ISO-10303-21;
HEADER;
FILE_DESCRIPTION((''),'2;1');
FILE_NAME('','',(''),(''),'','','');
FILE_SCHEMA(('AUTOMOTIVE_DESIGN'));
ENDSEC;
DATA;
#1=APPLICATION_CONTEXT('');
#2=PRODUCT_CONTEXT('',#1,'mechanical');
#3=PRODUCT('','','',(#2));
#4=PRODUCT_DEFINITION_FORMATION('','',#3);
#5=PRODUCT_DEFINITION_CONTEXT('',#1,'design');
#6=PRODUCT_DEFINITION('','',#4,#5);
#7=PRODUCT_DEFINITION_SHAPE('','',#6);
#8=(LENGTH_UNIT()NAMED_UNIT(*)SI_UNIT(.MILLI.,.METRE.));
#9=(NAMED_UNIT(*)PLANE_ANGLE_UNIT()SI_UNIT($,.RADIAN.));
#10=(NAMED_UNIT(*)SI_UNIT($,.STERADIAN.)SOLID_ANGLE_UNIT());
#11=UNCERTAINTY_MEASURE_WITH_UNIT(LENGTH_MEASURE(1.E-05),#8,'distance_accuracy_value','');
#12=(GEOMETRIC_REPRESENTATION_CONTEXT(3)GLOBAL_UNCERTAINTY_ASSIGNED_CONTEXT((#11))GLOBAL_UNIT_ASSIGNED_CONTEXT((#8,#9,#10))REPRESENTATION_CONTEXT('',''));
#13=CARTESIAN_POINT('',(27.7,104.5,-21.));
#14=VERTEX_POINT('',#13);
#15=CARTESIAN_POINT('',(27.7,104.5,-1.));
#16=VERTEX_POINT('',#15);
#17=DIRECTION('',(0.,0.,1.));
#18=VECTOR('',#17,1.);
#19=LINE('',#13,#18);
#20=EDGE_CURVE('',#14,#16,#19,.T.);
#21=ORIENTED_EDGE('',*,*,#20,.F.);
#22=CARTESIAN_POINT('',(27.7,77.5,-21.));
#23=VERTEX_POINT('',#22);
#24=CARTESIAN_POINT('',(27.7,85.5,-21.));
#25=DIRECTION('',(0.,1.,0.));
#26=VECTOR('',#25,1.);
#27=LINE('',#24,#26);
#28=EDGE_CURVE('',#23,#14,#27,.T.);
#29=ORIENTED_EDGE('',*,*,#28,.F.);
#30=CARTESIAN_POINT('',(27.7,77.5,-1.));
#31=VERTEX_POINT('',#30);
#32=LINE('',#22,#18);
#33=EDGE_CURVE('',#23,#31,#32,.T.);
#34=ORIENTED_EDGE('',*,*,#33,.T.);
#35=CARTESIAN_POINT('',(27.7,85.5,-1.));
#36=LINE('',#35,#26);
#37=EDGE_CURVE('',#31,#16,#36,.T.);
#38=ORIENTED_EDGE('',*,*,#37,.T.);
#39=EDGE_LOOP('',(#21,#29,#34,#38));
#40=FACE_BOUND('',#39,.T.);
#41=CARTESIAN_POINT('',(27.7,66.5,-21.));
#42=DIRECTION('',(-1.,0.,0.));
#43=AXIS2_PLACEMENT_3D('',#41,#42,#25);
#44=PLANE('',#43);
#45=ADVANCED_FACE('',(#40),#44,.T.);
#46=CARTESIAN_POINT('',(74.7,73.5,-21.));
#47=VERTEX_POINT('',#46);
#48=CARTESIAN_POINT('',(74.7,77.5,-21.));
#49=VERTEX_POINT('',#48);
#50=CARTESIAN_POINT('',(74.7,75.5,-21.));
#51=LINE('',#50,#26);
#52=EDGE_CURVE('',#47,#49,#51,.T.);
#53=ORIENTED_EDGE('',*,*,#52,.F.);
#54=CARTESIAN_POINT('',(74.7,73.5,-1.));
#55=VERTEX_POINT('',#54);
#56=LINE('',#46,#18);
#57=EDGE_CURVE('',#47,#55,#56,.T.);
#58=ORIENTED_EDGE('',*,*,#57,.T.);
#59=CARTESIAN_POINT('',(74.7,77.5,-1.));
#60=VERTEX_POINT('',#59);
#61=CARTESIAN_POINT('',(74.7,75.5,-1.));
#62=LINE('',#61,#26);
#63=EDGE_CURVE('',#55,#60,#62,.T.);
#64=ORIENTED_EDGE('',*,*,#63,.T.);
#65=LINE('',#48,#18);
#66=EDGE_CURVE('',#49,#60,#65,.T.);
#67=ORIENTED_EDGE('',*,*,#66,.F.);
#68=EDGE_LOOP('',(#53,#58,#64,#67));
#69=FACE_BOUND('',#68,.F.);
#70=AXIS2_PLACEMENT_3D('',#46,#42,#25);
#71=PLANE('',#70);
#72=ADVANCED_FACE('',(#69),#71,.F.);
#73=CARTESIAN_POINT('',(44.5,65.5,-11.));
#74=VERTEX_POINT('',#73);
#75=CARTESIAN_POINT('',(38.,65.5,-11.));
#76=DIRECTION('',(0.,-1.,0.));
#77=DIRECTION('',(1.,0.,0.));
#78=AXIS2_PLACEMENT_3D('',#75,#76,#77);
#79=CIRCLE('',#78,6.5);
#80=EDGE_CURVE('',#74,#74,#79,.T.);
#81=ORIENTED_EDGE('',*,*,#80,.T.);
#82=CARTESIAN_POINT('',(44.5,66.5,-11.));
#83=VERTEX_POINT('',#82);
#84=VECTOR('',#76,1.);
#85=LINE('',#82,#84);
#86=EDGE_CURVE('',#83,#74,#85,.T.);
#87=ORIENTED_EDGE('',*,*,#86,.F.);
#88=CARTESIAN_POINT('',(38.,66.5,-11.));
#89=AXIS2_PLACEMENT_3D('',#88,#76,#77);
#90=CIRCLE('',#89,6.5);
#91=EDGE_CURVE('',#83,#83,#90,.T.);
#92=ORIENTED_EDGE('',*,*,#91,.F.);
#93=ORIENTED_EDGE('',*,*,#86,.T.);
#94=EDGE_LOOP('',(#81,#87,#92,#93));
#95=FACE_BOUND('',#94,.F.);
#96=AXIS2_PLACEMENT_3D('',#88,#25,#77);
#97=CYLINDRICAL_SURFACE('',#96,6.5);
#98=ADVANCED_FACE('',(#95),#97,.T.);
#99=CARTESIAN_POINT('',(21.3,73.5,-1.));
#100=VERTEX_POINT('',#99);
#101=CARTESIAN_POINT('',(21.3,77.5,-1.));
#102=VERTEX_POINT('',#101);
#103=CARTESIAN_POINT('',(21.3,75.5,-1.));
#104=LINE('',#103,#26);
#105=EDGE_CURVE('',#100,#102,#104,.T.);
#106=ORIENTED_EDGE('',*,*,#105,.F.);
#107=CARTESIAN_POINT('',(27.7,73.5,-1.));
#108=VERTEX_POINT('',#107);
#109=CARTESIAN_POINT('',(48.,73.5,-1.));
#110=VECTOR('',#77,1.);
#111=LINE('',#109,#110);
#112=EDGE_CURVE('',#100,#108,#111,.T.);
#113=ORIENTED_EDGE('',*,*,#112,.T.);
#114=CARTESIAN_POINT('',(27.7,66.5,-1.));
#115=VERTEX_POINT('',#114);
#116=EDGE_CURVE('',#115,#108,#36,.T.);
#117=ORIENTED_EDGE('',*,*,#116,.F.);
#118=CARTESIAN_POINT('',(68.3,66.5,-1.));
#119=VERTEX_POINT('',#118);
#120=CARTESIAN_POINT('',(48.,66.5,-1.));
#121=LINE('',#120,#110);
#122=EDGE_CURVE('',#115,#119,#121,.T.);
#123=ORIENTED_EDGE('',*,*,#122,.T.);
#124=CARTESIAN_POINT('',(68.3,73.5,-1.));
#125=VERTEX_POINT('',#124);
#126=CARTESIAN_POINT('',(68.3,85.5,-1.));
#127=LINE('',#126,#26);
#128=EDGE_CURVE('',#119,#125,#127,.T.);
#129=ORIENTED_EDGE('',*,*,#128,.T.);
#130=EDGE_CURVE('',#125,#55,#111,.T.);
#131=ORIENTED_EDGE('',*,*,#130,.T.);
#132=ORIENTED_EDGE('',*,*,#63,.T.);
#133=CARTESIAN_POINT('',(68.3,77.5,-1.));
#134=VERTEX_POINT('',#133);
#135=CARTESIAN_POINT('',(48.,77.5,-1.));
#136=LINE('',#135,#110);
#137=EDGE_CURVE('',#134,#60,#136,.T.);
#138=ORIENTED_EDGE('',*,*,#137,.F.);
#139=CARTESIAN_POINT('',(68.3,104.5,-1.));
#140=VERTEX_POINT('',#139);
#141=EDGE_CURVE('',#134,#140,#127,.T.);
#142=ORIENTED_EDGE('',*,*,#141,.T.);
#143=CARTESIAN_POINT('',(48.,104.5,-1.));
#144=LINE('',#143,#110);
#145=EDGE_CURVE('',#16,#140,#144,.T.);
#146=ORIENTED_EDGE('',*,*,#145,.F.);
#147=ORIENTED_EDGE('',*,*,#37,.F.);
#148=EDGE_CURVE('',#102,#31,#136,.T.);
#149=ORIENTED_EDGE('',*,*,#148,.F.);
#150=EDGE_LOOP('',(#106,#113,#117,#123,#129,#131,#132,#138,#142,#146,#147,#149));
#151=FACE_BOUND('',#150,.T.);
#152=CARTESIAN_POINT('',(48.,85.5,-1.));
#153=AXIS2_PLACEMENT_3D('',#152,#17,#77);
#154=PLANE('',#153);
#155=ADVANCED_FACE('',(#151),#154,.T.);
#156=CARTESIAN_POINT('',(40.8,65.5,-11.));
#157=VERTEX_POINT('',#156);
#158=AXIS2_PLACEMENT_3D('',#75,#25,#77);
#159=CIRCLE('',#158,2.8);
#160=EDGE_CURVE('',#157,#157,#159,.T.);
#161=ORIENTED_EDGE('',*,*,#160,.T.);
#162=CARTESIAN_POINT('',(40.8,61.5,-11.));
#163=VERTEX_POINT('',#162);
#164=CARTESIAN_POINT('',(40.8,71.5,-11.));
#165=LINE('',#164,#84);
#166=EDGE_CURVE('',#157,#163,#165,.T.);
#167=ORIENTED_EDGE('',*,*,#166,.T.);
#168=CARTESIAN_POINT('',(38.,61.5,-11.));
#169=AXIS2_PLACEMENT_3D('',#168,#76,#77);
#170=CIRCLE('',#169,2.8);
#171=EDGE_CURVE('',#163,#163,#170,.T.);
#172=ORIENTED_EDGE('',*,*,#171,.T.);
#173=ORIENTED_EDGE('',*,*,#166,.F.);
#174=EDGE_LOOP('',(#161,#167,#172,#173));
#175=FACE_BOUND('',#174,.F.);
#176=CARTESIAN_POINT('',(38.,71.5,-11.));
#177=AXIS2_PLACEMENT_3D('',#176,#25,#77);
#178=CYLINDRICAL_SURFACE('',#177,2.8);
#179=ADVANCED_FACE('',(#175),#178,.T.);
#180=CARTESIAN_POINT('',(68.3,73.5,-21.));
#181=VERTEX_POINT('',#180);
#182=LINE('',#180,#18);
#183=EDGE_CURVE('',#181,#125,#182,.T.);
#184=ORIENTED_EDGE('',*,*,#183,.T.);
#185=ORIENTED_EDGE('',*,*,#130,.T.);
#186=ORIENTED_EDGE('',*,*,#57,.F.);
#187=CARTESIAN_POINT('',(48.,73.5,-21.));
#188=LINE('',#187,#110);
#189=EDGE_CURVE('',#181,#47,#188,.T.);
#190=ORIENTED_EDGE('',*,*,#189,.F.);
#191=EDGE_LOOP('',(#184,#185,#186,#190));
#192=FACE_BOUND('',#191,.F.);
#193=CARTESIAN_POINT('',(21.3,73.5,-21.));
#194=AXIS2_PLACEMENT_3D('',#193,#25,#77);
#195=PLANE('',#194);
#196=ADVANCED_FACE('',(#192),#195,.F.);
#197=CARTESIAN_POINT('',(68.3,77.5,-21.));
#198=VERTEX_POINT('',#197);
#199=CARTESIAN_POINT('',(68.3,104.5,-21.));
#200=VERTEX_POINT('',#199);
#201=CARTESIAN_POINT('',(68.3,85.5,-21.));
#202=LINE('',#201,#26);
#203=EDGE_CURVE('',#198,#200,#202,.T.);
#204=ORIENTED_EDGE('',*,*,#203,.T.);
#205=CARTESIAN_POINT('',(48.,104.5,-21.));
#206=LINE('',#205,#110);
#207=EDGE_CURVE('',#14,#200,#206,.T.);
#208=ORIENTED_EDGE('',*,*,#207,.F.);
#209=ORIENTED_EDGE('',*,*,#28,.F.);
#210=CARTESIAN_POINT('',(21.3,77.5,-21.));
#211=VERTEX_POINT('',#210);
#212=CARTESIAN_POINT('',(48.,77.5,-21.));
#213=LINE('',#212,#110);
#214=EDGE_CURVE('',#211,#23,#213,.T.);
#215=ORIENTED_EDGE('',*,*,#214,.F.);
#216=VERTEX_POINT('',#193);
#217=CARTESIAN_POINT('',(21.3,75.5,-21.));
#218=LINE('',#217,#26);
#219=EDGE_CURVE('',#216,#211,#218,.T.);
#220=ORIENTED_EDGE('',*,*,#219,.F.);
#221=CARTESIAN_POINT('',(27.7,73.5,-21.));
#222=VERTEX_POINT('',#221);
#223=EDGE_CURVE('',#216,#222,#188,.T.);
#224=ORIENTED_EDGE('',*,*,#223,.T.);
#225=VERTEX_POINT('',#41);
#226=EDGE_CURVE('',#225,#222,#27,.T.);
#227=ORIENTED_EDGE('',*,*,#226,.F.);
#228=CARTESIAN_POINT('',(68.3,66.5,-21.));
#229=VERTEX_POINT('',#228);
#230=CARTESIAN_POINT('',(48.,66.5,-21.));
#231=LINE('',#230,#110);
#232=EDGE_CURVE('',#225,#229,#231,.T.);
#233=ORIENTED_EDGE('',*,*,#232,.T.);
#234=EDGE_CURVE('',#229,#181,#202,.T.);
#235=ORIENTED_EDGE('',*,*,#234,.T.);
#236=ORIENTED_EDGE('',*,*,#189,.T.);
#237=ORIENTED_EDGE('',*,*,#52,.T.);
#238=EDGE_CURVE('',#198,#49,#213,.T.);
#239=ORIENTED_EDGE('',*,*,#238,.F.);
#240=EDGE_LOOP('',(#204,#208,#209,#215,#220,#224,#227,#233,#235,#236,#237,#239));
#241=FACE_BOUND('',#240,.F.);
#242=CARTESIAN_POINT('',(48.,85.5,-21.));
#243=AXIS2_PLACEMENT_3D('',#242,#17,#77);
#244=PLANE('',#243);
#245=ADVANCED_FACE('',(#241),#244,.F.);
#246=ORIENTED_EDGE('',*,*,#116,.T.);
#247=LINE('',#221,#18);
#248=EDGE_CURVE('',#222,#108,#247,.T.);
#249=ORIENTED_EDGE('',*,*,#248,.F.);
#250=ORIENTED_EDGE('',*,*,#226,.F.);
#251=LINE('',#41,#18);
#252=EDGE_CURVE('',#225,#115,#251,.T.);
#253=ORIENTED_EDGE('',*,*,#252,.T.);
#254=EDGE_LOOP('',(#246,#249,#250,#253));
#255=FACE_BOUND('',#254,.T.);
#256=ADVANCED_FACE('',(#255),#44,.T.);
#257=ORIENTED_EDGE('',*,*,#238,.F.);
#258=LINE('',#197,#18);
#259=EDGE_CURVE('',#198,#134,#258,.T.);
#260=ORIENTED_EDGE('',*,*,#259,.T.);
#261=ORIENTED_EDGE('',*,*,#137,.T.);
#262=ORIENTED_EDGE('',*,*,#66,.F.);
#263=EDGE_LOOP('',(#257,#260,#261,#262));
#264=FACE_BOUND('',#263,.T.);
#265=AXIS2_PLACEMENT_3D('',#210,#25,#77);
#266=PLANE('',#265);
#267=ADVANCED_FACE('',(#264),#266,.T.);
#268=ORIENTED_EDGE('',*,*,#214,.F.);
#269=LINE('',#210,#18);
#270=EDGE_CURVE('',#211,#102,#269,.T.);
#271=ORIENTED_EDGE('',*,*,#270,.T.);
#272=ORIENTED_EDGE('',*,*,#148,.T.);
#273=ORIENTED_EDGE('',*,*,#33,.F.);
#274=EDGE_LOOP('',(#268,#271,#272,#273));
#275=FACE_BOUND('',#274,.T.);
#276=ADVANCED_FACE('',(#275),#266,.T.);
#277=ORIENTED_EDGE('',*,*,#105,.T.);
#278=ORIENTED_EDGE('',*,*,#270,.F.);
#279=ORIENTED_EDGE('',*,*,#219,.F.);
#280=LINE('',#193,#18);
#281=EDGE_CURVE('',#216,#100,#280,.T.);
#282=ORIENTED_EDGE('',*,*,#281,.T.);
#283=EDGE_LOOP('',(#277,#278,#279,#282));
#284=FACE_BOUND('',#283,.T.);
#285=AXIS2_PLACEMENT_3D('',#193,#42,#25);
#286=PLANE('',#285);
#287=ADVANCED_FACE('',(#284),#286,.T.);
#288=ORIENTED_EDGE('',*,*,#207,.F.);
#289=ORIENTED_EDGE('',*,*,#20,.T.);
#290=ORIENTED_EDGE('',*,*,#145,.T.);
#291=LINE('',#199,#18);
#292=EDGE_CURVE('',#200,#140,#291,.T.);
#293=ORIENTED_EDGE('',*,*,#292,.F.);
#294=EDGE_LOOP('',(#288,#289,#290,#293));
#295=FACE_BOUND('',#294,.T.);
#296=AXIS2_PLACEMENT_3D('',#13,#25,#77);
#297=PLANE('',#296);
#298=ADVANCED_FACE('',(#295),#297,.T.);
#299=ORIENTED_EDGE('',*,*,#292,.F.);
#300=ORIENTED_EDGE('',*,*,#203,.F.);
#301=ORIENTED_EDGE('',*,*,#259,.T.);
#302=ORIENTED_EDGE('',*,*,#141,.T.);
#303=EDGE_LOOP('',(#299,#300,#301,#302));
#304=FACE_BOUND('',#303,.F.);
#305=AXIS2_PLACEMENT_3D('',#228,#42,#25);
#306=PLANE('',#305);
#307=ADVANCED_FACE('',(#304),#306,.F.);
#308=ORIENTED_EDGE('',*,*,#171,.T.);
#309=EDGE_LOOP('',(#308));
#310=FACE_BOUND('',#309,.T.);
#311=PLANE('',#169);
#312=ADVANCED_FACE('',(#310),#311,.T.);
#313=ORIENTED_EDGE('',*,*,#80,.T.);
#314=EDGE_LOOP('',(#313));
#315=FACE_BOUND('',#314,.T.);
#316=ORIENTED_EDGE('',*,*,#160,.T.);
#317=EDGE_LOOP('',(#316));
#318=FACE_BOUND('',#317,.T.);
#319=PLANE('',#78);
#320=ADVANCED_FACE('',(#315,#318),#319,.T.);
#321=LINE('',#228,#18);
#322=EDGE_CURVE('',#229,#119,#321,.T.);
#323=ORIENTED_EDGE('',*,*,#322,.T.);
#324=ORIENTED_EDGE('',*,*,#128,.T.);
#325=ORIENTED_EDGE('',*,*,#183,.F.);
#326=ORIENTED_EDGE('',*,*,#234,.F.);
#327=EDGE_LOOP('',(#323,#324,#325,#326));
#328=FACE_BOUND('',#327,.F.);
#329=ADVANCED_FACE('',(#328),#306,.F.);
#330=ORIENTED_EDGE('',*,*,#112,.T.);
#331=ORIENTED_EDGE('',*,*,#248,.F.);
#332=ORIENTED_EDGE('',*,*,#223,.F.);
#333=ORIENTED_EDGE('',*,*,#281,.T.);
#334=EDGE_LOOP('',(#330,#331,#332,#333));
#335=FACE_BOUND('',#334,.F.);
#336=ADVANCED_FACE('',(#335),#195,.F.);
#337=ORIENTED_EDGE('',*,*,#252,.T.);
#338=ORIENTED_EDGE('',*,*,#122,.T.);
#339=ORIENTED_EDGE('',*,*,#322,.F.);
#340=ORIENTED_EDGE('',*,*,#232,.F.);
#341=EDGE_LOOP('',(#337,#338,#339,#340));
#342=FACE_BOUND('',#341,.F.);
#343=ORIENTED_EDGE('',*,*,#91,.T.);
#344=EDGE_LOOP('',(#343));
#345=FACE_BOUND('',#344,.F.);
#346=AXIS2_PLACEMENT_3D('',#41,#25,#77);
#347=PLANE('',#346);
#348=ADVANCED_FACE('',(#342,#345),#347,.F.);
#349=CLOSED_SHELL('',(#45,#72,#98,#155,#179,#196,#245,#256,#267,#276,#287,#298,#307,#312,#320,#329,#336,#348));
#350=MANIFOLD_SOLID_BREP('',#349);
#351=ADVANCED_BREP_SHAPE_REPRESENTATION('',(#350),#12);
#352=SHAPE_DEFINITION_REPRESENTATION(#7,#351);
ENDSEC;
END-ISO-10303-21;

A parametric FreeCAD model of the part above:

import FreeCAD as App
import Part
import Sketcher

V = App.Vector
Q = App.Units.Quantity

doc = App.newDocument("Part")
params = doc.addObject("Spreadsheet::Sheet", "Params")
for row, (alias, value) in enumerate([
    ("sketch1_diameter", "13 mm"),
    ("pad1_length", "1 mm"),
    ("sketch2_height", "38 mm"),
    ("sketch2_width", "40.6 mm"),
    ("pad2_length", "20 mm"),
    ("sketch3_diameter", "5.6 mm"),
    ("pad3_length", "10 mm"),
    ("sketch4_height", "4 mm"),
    ("sketch4_width", "53.4 mm"),
    ("pad4_length", "20 mm"),
], start=1):
    params.set(f"A{row}", alias)
    params.set(f"B{row}", "=" + value)
    params.setAlias(f"B{row}", alias)

body = doc.addObject("PartDesign::Body", "Body")

sketch1 = body.newObject("Sketcher::SketchObject", "Sketch")
sketch1.AttachmentSupport = (doc.getObject("XY_Plane"), [""])
sketch1.MapMode = "FlatFace"
sketch1.addGeometry(Part.Circle(V(0, 0, 0), V(0, 0, 1), 6), False)
sketch1.addConstraint(Sketcher.Constraint("Coincident", 0, 3, -1, 1))
sketch1.addConstraint(Sketcher.Constraint("Diameter", 0, Q("13 mm")))
sketch1.setExpression("Constraints[1]", "Params.sketch1_diameter")
pad1 = body.newObject("PartDesign::Pad", "Pad")
pad1.Profile = sketch1
pad1.setExpression("Length", "Params.pad1_length")
body2 = doc.addObject("PartDesign::Body", "Body001")
doc.recompute()

body.Placement = App.Placement(V(0, 0, 0), App.Rotation(V(1, 0, 0), 90))
boolean = body2.newObject("PartDesign::Boolean", "Boolean")
boolean.Type = "Fuse"
boolean.addObjects([body])
body3 = doc.addObject("PartDesign::Body", "Body002")
doc.recompute()

body2.Placement = App.Placement(V(37, 66.5, -11), App.Rotation(V(0, 0, 1), 0))
boolean2 = body3.newObject("PartDesign::Boolean", "Boolean001")
boolean2.Type = "Fuse"
boolean2.addObjects([body2])
body4 = doc.addObject("PartDesign::Body", "Body003")

sketch2 = body4.newObject("Sketcher::SketchObject", "Sketch001")
sketch2.AttachmentSupport = (doc.getObject("XY_Plane003"), [""])
sketch2.MapMode = "FlatFace"
sketch2.addGeometry(Part.LineSegment(V(0, 38, 0), V(0, 0, 0)), False)
sketch2.addGeometry(Part.LineSegment(V(0, 0, 0), V(40, 0, 0)), False)
sketch2.addGeometry(Part.LineSegment(V(40, 0, 0), V(40, 38, 0)), False)
sketch2.addGeometry(Part.LineSegment(V(40, 38, 0), V(0, 38, 0)), False)
sketch2.addConstraint(Sketcher.Constraint("Coincident", 0, 2, 1, 1))
sketch2.addConstraint(Sketcher.Constraint("Coincident", 1, 2, 2, 1))
sketch2.addConstraint(Sketcher.Constraint("Coincident", 2, 2, 3, 1))
sketch2.addConstraint(Sketcher.Constraint("Coincident", 3, 2, 0, 1))
sketch2.addConstraint(Sketcher.Constraint("Vertical", 0))
sketch2.addConstraint(Sketcher.Constraint("Horizontal", 1))
sketch2.addConstraint(Sketcher.Constraint("Vertical", 2))
sketch2.addConstraint(Sketcher.Constraint("Horizontal", 3))
sketch2.addConstraint(Sketcher.Constraint("PointOnObject", 0, 2, -1))
sketch2.addConstraint(Sketcher.Constraint("DistanceY", 0, 2, 0, 1, Q("38 mm")))
sketch2.addConstraint(Sketcher.Constraint("DistanceX", 1, 1, 1, 2, Q("40.6 mm")))
sketch2.addConstraint(Sketcher.Constraint("DistanceX", 0, 2, -1, 1, Q("0.3 mm")))
sketch2.setExpression("Constraints[9]", "Params.sketch2_height")
sketch2.setExpression("Constraints[10]", "Params.sketch2_width")
pad2 = body4.newObject("PartDesign::Pad", "Pad001")
pad2.Profile = sketch2
pad2.setExpression("Length", "Params.pad2_length")
body5 = doc.addObject("PartDesign::Body", "Body004")

sketch3 = body5.newObject("Sketcher::SketchObject", "Sketch002")
sketch3.AttachmentSupport = (doc.getObject("XY_Plane004"), [""])
sketch3.MapMode = "FlatFace"
sketch3.addGeometry(Part.Circle(V(0, 0, 0), V(0, 0, 1), 2.8), False)
sketch3.addConstraint(Sketcher.Constraint("Coincident", 0, 3, -1, 1))
sketch3.addConstraint(Sketcher.Constraint("Diameter", 0, Q("5.6 mm")))
sketch3.setExpression("Constraints[1]", "Params.sketch3_diameter")
pad3 = body5.newObject("PartDesign::Pad", "Pad002")
pad3.Profile = sketch3
pad3.setExpression("Length", "Params.pad3_length")
body6 = doc.addObject("PartDesign::Body", "Body005")
doc.recompute()

body5.Placement = App.Placement(V(0, 0, 0), App.Rotation(V(1, 0, 0), 90))
boolean3 = body6.newObject("PartDesign::Boolean", "Boolean002")
boolean3.Type = "Fuse"
boolean3.addObjects([body5])
body7 = doc.addObject("PartDesign::Body", "Body006")
doc.recompute()

body6.Placement = App.Placement(V(10, 5, 10), App.Rotation(V(0, 0, 1), 0))
boolean4 = body7.newObject("PartDesign::Boolean", "Boolean003")
boolean4.Type = "Fuse"
boolean4.addObjects([body6])
body8 = doc.addObject("PartDesign::Body", "Body007")

sketch4 = body8.newObject("Sketcher::SketchObject", "Sketch003")
sketch4.AttachmentSupport = (doc.getObject("XY_Plane007"), [""])
sketch4.MapMode = "FlatFace"
sketch4.addGeometry(Part.LineSegment(V(-6.7, 11, 0), V(-6.7, 7, 0)), False)
sketch4.addGeometry(Part.LineSegment(V(-6.7, 7, 0), V(46.7, 7, 0)), False)
sketch4.addGeometry(Part.LineSegment(V(46.7, 7, 0), V(46.7, 11, 0)), False)
sketch4.addGeometry(Part.LineSegment(V(46.7, 11, 0), V(-6.7, 11, 0)), False)
sketch4.addConstraint(Sketcher.Constraint("Coincident", 0, 2, 1, 1))
sketch4.addConstraint(Sketcher.Constraint("Coincident", 1, 2, 2, 1))
sketch4.addConstraint(Sketcher.Constraint("Coincident", 2, 2, 3, 1))
sketch4.addConstraint(Sketcher.Constraint("Coincident", 3, 2, 0, 1))
sketch4.addConstraint(Sketcher.Constraint("Vertical", 0))
sketch4.addConstraint(Sketcher.Constraint("Horizontal", 1))
sketch4.addConstraint(Sketcher.Constraint("Vertical", 2))
sketch4.addConstraint(Sketcher.Constraint("Horizontal", 3))
sketch4.addConstraint(Sketcher.Constraint("DistanceY", 0, 2, 0, 1, Q("4 mm")))
sketch4.addConstraint(Sketcher.Constraint("DistanceX", 1, 1, 1, 2, Q("53.4 mm")))
sketch4.addConstraint(Sketcher.Constraint("DistanceY", -1, 1, 0, 2, Q("7 mm")))
sketch4.addConstraint(Sketcher.Constraint("DistanceX", 0, 2, -1, 1, Q("6.7 mm")))
sketch4.setExpression("Constraints[8]", "Params.sketch4_height")
sketch4.setExpression("Constraints[9]", "Params.sketch4_width")
pad4 = body8.newObject("PartDesign::Pad", "Pad003")
pad4.Profile = sketch4
pad4.setExpression("Length", "Params.pad4_length")
doc.recompute()

boolean5 = body8.newObject("PartDesign::Boolean", "Boolean004")
boolean5.Type = "Fuse"
boolean5.addObjects([body4])
doc.recompute()

boolean6 = body8.newObject("PartDesign::Boolean", "Boolean005")
boolean6.Type = "Fuse"
boolean6.addObjects([body7])
body9 = doc.addObject("PartDesign::Body", "Body008")
doc.recompute()

body8.Placement = App.Placement(V(27, 66.5, -21), App.Rotation(V(0, 0, 1), 0))
boolean7 = body9.newObject("PartDesign::Boolean", "Boolean006")
boolean7.Type = "Fuse"
boolean7.addObjects([body8])
doc.recompute()

boolean8 = body9.newObject("PartDesign::Boolean", "Boolean007")
boolean8.Type = "Fuse"
boolean8.addObjects([body3])
body10 = doc.addObject("PartDesign::Body", "Body009")
doc.recompute()

body9.Placement = App.Placement(V(1, 0, 0), App.Rotation(V(0, 0, 1), 0))
boolean9 = body10.newObject("PartDesign::Boolean", "Boolean008")
boolean9.Type = "Fuse"
boolean9.addObjects([body9])

doc.recompute()
